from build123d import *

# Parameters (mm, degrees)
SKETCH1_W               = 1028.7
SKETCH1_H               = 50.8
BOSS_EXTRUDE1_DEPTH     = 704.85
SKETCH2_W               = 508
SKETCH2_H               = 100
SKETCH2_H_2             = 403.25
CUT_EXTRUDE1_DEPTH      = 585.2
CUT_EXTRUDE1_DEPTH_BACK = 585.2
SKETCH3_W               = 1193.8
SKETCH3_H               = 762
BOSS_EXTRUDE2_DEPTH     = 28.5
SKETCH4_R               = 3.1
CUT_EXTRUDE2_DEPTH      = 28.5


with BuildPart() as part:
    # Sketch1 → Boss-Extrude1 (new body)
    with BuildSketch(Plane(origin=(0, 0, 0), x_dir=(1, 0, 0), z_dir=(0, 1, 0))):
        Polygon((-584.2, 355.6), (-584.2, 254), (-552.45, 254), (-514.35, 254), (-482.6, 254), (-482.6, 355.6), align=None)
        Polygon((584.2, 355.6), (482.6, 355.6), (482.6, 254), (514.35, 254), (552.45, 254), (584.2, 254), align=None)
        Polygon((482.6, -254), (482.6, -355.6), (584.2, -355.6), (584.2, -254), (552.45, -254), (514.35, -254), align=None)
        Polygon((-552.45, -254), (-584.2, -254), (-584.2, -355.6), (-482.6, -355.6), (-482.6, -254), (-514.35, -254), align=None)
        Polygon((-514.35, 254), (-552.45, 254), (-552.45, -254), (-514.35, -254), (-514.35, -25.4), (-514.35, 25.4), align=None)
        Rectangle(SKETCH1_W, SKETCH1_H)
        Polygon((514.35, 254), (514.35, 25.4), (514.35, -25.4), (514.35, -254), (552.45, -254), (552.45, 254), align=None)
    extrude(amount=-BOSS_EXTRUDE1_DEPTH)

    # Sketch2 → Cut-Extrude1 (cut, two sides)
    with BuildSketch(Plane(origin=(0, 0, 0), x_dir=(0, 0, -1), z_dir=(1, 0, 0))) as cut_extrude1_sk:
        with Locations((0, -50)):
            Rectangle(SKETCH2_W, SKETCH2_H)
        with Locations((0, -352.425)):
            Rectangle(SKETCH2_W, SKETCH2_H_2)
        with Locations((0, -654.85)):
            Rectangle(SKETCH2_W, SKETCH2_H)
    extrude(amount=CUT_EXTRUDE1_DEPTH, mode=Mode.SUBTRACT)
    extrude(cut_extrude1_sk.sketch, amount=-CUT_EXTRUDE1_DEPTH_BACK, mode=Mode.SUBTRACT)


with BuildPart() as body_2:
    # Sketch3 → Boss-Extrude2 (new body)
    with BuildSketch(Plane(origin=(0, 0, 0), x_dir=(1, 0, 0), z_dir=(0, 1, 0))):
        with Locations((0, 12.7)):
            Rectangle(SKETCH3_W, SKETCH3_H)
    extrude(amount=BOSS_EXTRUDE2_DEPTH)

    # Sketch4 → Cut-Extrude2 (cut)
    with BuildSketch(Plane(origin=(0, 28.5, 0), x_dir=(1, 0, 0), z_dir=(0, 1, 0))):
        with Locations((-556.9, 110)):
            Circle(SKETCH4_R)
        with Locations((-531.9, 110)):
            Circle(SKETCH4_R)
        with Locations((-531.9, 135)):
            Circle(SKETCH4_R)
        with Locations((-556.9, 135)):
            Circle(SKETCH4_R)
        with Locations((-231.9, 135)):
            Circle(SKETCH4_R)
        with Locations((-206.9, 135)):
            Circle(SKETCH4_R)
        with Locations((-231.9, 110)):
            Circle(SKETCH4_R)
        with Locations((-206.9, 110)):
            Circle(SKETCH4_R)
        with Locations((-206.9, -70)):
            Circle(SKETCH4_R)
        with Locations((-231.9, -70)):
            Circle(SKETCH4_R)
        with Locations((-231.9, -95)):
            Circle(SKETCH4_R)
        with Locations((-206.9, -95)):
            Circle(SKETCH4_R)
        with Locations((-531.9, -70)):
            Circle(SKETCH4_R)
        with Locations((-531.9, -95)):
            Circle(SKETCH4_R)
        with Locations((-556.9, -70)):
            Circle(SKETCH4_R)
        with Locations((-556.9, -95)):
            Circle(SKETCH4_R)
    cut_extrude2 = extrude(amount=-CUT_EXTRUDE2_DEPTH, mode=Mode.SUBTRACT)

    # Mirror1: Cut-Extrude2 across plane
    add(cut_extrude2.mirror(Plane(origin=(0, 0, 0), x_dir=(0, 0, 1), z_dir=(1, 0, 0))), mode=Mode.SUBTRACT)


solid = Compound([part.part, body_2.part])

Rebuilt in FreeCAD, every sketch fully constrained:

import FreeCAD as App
import Part
import Sketcher
Q = App.Units.Quantity

doc = App.newDocument("Part")
params = doc.addObject("Spreadsheet::Sheet", "Params")
for row, (alias, value) in enumerate([
    ("sketch1_width", "4 in"),
    ("sketch1_height", "20 in"),
    ("sketch1_height2", "9 in"),
    ("sketch1_width2", "40.5 in"),
    ("pad1_length", "27.75 in"),
    ("sketch2_height", "20 in"),
    ("sketch3_width", "47 in"),
    ("sketch3_height", "30 in"),
    ("pad2_length", "28.5 mm"),
    ("pocket2_length", "28.5 mm"),
], start=1):
    params.set(f"A{row}", alias)
    params.set(f"B{row}", "=" + value)
    params.setAlias(f"B{row}", alias)

body = doc.addObject("PartDesign::Body", "Body")

# Sketch on XZ plane
sketch1 = doc.addObject("Sketcher::SketchObject", "Sketch")
body.addObject(sketch1)
sketch1.AttachmentSupport = (doc.XZ_Plane, [""])
sketch1.MapMode = "FlatFace"
sketch1.addGeometry([
    Part.LineSegment(App.Vector(-584.2, -355.6, 0), App.Vector(-584.2, -254, 0)),  # 0
    Part.LineSegment(App.Vector(-584.2, -254, 0), App.Vector(-552.45, -254, 0)),  # 1
    Part.LineSegment(App.Vector(-552.45, -254, 0), App.Vector(-552.45, 254, 0)),  # 2
    Part.LineSegment(App.Vector(-552.45, 254, 0), App.Vector(-584.2, 254, 0)),  # 3
    Part.LineSegment(App.Vector(-584.2, 254, 0), App.Vector(-584.2, 355.6, 0)),  # 4
    Part.LineSegment(App.Vector(-584.2, 355.6, 0), App.Vector(-482.6, 355.6, 0)),  # 5
    Part.LineSegment(App.Vector(-482.6, 355.6, 0), App.Vector(-482.6, 254, 0)),  # 6
    Part.LineSegment(App.Vector(-482.6, 254, 0), App.Vector(-514.35, 254, 0)),  # 7
    Part.LineSegment(App.Vector(-514.35, 254, 0), App.Vector(-514.35, 25.4, 0)),  # 8
    Part.LineSegment(App.Vector(-514.35, 25.4, 0), App.Vector(514.35, 25.4, 0)),  # 9
    Part.LineSegment(App.Vector(514.35, 25.4, 0), App.Vector(514.35, 254, 0)),  # 10
    Part.LineSegment(App.Vector(514.35, 254, 0), App.Vector(482.6, 254, 0)),  # 11
    Part.LineSegment(App.Vector(482.6, 254, 0), App.Vector(482.6, 355.6, 0)),  # 12
    Part.LineSegment(App.Vector(482.6, 355.6, 0), App.Vector(584.2, 355.6, 0)),  # 13
    Part.LineSegment(App.Vector(584.2, 355.6, 0), App.Vector(584.2, 254, 0)),  # 14
    Part.LineSegment(App.Vector(584.2, 254, 0), App.Vector(552.45, 254, 0)),  # 15
    Part.LineSegment(App.Vector(552.45, 254, 0), App.Vector(552.45, -254, 0)),  # 16
    Part.LineSegment(App.Vector(552.45, -254, 0), App.Vector(584.2, -254, 0)),  # 17
    Part.LineSegment(App.Vector(584.2, -254, 0), App.Vector(584.2, -355.6, 0)),  # 18
    Part.LineSegment(App.Vector(584.2, -355.6, 0), App.Vector(482.6, -355.6, 0)),  # 19
    Part.LineSegment(App.Vector(482.6, -355.6, 0), App.Vector(482.6, -254, 0)),  # 20
    Part.LineSegment(App.Vector(482.6, -254, 0), App.Vector(514.35, -254, 0)),  # 21
    Part.LineSegment(App.Vector(514.35, -254, 0), App.Vector(514.35, -25.4, 0)),  # 22
    Part.LineSegment(App.Vector(514.35, -25.4, 0), App.Vector(-514.35, -25.4, 0)),  # 23
    Part.LineSegment(App.Vector(-514.35, -25.4, 0), App.Vector(-514.35, -254, 0)),  # 24
    Part.LineSegment(App.Vector(-514.35, -254, 0), App.Vector(-482.6, -254, 0)),  # 25
    Part.LineSegment(App.Vector(-482.6, -254, 0), App.Vector(-482.6, -355.6, 0)),  # 26
    Part.LineSegment(App.Vector(-482.6, -355.6, 0), App.Vector(-584.2, -355.6, 0)),  # 27
], False)
sketch1.addConstraint([
    Sketcher.Constraint("Coincident", 0, 2, 1, 1),
    Sketcher.Constraint("Coincident", 1, 2, 2, 1),
    Sketcher.Constraint("Coincident", 2, 2, 3, 1),
    Sketcher.Constraint("Coincident", 3, 2, 4, 1),
    Sketcher.Constraint("Coincident", 4, 2, 5, 1),
    Sketcher.Constraint("Coincident", 5, 2, 6, 1),
    Sketcher.Constraint("Coincident", 6, 2, 7, 1),
    Sketcher.Constraint("Coincident", 7, 2, 8, 1),
    Sketcher.Constraint("Coincident", 8, 2, 9, 1),
    Sketcher.Constraint("Coincident", 9, 2, 10, 1),
    Sketcher.Constraint("Coincident", 10, 2, 11, 1),
    Sketcher.Constraint("Coincident", 11, 2, 12, 1),
    Sketcher.Constraint("Coincident", 12, 2, 13, 1),
    Sketcher.Constraint("Coincident", 13, 2, 14, 1),
    Sketcher.Constraint("Coincident", 14, 2, 15, 1),
    Sketcher.Constraint("Coincident", 15, 2, 16, 1),
    Sketcher.Constraint("Coincident", 16, 2, 17, 1),
    Sketcher.Constraint("Coincident", 17, 2, 18, 1),
    Sketcher.Constraint("Coincident", 18, 2, 19, 1),
    Sketcher.Constraint("Coincident", 19, 2, 20, 1),
    Sketcher.Constraint("Coincident", 20, 2, 21, 1),
    Sketcher.Constraint("Coincident", 21, 2, 22, 1),
    Sketcher.Constraint("Coincident", 22, 2, 23, 1),
    Sketcher.Constraint("Coincident", 23, 2, 24, 1),
    Sketcher.Constraint("Coincident", 24, 2, 25, 1),
    Sketcher.Constraint("Coincident", 25, 2, 26, 1),
    Sketcher.Constraint("Coincident", 26, 2, 27, 1),
    Sketcher.Constraint("Coincident", 27, 2, 0, 1),
    Sketcher.Constraint("Vertical", 0),
    Sketcher.Constraint("Horizontal", 1),
    Sketcher.Constraint("Vertical", 2),
    Sketcher.Constraint("Horizontal", 3),
    Sketcher.Constraint("Vertical", 4),
    Sketcher.Constraint("Horizontal", 5),
    Sketcher.Constraint("Vertical", 6),
    Sketcher.Constraint("Horizontal", 7),
    Sketcher.Constraint("Vertical", 8),
    Sketcher.Constraint("Horizontal", 9),
    Sketcher.Constraint("Vertical", 10),
    Sketcher.Constraint("Horizontal", 11),
    Sketcher.Constraint("Vertical", 12),
    Sketcher.Constraint("Horizontal", 13),
    Sketcher.Constraint("Vertical", 14),
    Sketcher.Constraint("Horizontal", 15),
    Sketcher.Constraint("Vertical", 16),
    Sketcher.Constraint("Horizontal", 17),
    Sketcher.Constraint("Vertical", 18),
    Sketcher.Constraint("Horizontal", 19),
    Sketcher.Constraint("Vertical", 20),
    Sketcher.Constraint("Horizontal", 21),
    Sketcher.Constraint("Vertical", 22),
    Sketcher.Constraint("Horizontal", 23),
    Sketcher.Constraint("Vertical", 24),
    Sketcher.Constraint("Horizontal", 25),
    Sketcher.Constraint("Vertical", 26),
    Sketcher.Constraint("Horizontal", 27),
    Sketcher.Constraint("Symmetric", 0, 2, 14, 2, -1, 1),
    Sketcher.Constraint("Symmetric", 2, 2, 16, 2, -1, 1),
    Sketcher.Constraint("Symmetric", 4, 2, 18, 2, -1, 1),
    Sketcher.Constraint("Symmetric", 6, 2, 20, 2, -1, 1),
    Sketcher.Constraint("Symmetric", 8, 2, 22, 2, -1, 1),
    Sketcher.Constraint("Symmetric", 10, 2, 24, 2, -1, 1),
    Sketcher.Constraint("Symmetric", 12, 2, 26, 2, -1, 1),
    Sketcher.Constraint("Symmetric", 7, 2, 10, 2, -2),
    Sketcher.Constraint("Symmetric", 5, 2, 12, 2, -2),
    Sketcher.Constraint("Symmetric", 3, 2, 14, 2, -2),
    Sketcher.Constraint("Horizontal", 3, 2, 6, 2),
    Sketcher.Constraint("Equal", 3, 7),
    Sketcher.Constraint("Equal", 27, 0),
    Sketcher.Constraint("DistanceX", 5, 1, 5, 2, Q("4 in")),
    Sketcher.Constraint("DistanceY", 2, 1, 2, 2, Q("20 in")),
    Sketcher.Constraint("DistanceY", 8, 2, 8, 1, Q("9 in")),
    Sketcher.Constraint("DistanceX", 9, 1, 9, 2, Q("40.5 in")),
    Sketcher.Constraint("DistanceX", 0, 2, -1, 1, Q("23 in")),
])
sketch1.setExpression("Constraints[69]", "Params.sketch1_width")
sketch1.setExpression("Constraints[70]", "Params.sketch1_height")
sketch1.setExpression("Constraints[71]", "Params.sketch1_height2")
sketch1.setExpression("Constraints[72]", "Params.sketch1_width2")
pad1 = doc.addObject("PartDesign::Pad", "Pad")
body.addObject(pad1)
pad1.Profile = sketch1
pad1.setExpression("Length", "Params.pad1_length")

# Sketch on YZ plane
sketch2 = doc.addObject("Sketcher::SketchObject", "Sketch001")
body.addObject(sketch2)
sketch2.AttachmentSupport = (doc.YZ_Plane, [""])
sketch2.MapMode = "FlatFace"
sketch2.addGeometry([
    Part.LineSegment(App.Vector(0, 254, 0), App.Vector(-100, 254, 0)),  # 0
    Part.LineSegment(App.Vector(-100, 254, 0), App.Vector(-100, -254, 0)),  # 1
    Part.LineSegment(App.Vector(-100, -254, 0), App.Vector(0, -254, 0)),  # 2
    Part.LineSegment(App.Vector(0, -254, 0), App.Vector(0, 254, 0)),  # 3
    Part.LineSegment(App.Vector(-150.8, 254, 0), App.Vector(-554.05, 254, 0)),  # 4
    Part.LineSegment(App.Vector(-554.05, 254, 0), App.Vector(-554.05, -254, 0)),  # 5
    Part.LineSegment(App.Vector(-554.05, -254, 0), App.Vector(-150.8, -254, 0)),  # 6
    Part.LineSegment(App.Vector(-150.8, -254, 0), App.Vector(-150.8, 254, 0)),  # 7
    Part.LineSegment(App.Vector(-604.85, 254, 0), App.Vector(-704.85, 254, 0)),  # 8
    Part.LineSegment(App.Vector(-704.85, 254, 0), App.Vector(-704.85, -254, 0)),  # 9
    Part.LineSegment(App.Vector(-704.85, -254, 0), App.Vector(-604.85, -254, 0)),  # 10
    Part.LineSegment(App.Vector(-604.85, -254, 0), App.Vector(-604.85, 254, 0)),  # 11
], False)
sketch2.addConstraint([
    Sketcher.Constraint("Coincident", 0, 2, 1, 1),
    Sketcher.Constraint("Coincident", 1, 2, 2, 1),
    Sketcher.Constraint("Coincident", 2, 2, 3, 1),
    Sketcher.Constraint("Coincident", 3, 2, 0, 1),
    Sketcher.Constraint("Coincident", 4, 2, 5, 1),
    Sketcher.Constraint("Coincident", 5, 2, 6, 1),
    Sketcher.Constraint("Coincident", 6, 2, 7, 1),
    Sketcher.Constraint("Coincident", 7, 2, 4, 1),
    Sketcher.Constraint("Coincident", 8, 2, 9, 1),
    Sketcher.Constraint("Coincident", 9, 2, 10, 1),
    Sketcher.Constraint("Coincident", 10, 2, 11, 1),
    Sketcher.Constraint("Coincident", 11, 2, 8, 1),
    Sketcher.Constraint("Horizontal", 0),
    Sketcher.Constraint("Vertical", 1),
    Sketcher.Constraint("Horizontal", 2),
    Sketcher.Constraint("Vertical", 3),
    Sketcher.Constraint("Horizontal", 4),
    Sketcher.Constraint("Vertical", 5),
    Sketcher.Constraint("Horizontal", 6),
    Sketcher.Constraint("Vertical", 7),
    Sketcher.Constraint("Horizontal", 8),
    Sketcher.Constraint("Vertical", 9),
    Sketcher.Constraint("Horizontal", 10),
    Sketcher.Constraint("Vertical", 11),
    Sketcher.Constraint("Symmetric", 2, 2, 3, 2, -1, 1),
    Sketcher.Constraint("Horizontal", 3, 2, 4, 2),
    Sketcher.Constraint("Horizontal", 2, 2, 5, 2),
    Sketcher.Constraint("Horizontal", 7, 2, 8, 2),
    Sketcher.Constraint("Horizontal", 6, 2, 9, 2),
    Sketcher.Constraint("Equal", 2, 8),
    Sketcher.Constraint("DistanceY", 1, 2, 1, 1, Q("20 in")),
    Sketcher.Constraint("DistanceX", 6, 2, 1, 2, Q("2 in")),
    Sketcher.Constraint("DistanceX", 10, 2, 5, 2, Q("2 in")),
    Sketcher.Constraint("DistanceX", 8, 2, -1, 1, Q("27.75 in")),
    Sketcher.Constraint("DistanceX", 0, 2, 0, 1, 100.0),
])
sketch2.setExpression("Constraints[30]", "Params.sketch2_height")
pocket1 = doc.addObject("PartDesign::Pocket", "Pocket")
body.addObject(pocket1)
pocket1.Profile = sketch2
pocket1.Type = "ThroughAll"
pocket1.Midplane = True
body2 = doc.addObject("PartDesign::Body", "Body001")

# Sketch on XZ plane
sketch3 = doc.addObject("Sketcher::SketchObject", "Sketch002")
body2.addObject(sketch3)
sketch3.AttachmentSupport = (doc.getObject("XZ_Plane001"), [""])
sketch3.MapMode = "FlatFace"
sketch3.addGeometry([
    Part.LineSegment(App.Vector(-596.9, -393.7, 0), App.Vector(-596.9, 368.3, 0)),
    Part.LineSegment(App.Vector(-596.9, 368.3, 0), App.Vector(596.9, 368.3, 0)),
    Part.LineSegment(App.Vector(596.9, 368.3, 0), App.Vector(596.9, -393.7, 0)),
    Part.LineSegment(App.Vector(596.9, -393.7, 0), App.Vector(-596.9, -393.7, 0)),
], False)
sketch3.addConstraint([
    Sketcher.Constraint("Coincident", 0, 2, 1, 1),
    Sketcher.Constraint("Coincident", 1, 2, 2, 1),
    Sketcher.Constraint("Coincident", 2, 2, 3, 1),
    Sketcher.Constraint("Coincident", 3, 2, 0, 1),
    Sketcher.Constraint("Vertical", 0),
    Sketcher.Constraint("Horizontal", 1),
    Sketcher.Constraint("Vertical", 2),
    Sketcher.Constraint("Horizontal", 3),
    Sketcher.Constraint("DistanceX", 1, 1, 1, 2, Q("47 in")),
    Sketcher.Constraint("DistanceY", 0, 1, 0, 2, Q("30 in")),
    Sketcher.Constraint("DistanceX", 0, 2, -1, 1, Q("23.5 in")),
    Sketcher.Constraint("DistanceY", -1, 1, 0, 2, Q("14.5 in")),
])
sketch3.setExpression("Constraints[8]", "Params.sketch3_width")
sketch3.setExpression("Constraints[9]", "Params.sketch3_height")
pad2 = doc.addObject("PartDesign::Pad", "Pad001")
body2.addObject(pad2)
pad2.Profile = sketch3
pad2.setExpression("Length", "Params.pad2_length")
pad2.Reversed = True

# Sketch on XZ plane
sketch4 = doc.addObject("Sketcher::SketchObject", "Sketch003")
body2.addObject(sketch4)
sketch4.AttachmentSupport = (doc.getObject("XZ_Plane001"), [""])
sketch4.MapMode = "FlatFace"
sketch4.AttachmentOffset = App.Placement(App.Vector(0, 0, -28.5), App.Rotation())
sketch4.addGeometry([
    Part.Circle(App.Vector(-556.9, -110, 0), App.Vector(0, 0, 1), 3.1),  # 0
    Part.Circle(App.Vector(-531.9, -110, 0), App.Vector(0, 0, 1), 3.1),  # 1
    Part.Circle(App.Vector(-531.9, -135, 0), App.Vector(0, 0, 1), 3.1),  # 2
    Part.Circle(App.Vector(-556.9, -135, 0), App.Vector(0, 0, 1), 3.1),  # 3
    Part.Circle(App.Vector(-231.9, -135, 0), App.Vector(0, 0, 1), 3.1),  # 4
    Part.Circle(App.Vector(-206.9, -135, 0), App.Vector(0, 0, 1), 3.1),  # 5
    Part.Circle(App.Vector(-231.9, -110, 0), App.Vector(0, 0, 1), 3.1),  # 6
    Part.Circle(App.Vector(-206.9, -110, 0), App.Vector(0, 0, 1), 3.1),  # 7
    Part.Circle(App.Vector(-206.9, 70, 0), App.Vector(0, 0, 1), 3.1),  # 8
    Part.Circle(App.Vector(-231.9, 70, 0), App.Vector(0, 0, 1), 3.1),  # 9
    Part.Circle(App.Vector(-231.9, 95, 0), App.Vector(0, 0, 1), 3.1),  # 10
    Part.Circle(App.Vector(-206.9, 95, 0), App.Vector(0, 0, 1), 3.1),  # 11
    Part.Circle(App.Vector(-531.9, 70, 0), App.Vector(0, 0, 1), 3.1),  # 12
    Part.Circle(App.Vector(-531.9, 95, 0), App.Vector(0, 0, 1), 3.1),  # 13
    Part.Circle(App.Vector(-556.9, 70, 0), App.Vector(0, 0, 1), 3.1),  # 14
    Part.Circle(App.Vector(-556.9, 95, 0), App.Vector(0, 0, 1), 3.1),  # 15
], False)
sketch4.addConstraint([
    Sketcher.Constraint("Equal", 0, 1),
    Sketcher.Constraint("Equal", 1, 2),
    Sketcher.Constraint("Equal", 2, 3),
    Sketcher.Constraint("Equal", 3, 4),
    Sketcher.Constraint("Equal", 4, 5),
    Sketcher.Constraint("Equal", 5, 6),
    Sketcher.Constraint("Equal", 6, 7),
    Sketcher.Constraint("Equal", 7, 8),
    Sketcher.Constraint("Equal", 8, 9),
    Sketcher.Constraint("Equal", 9, 10),
    Sketcher.Constraint("Equal", 10, 11),
    Sketcher.Constraint("Equal", 11, 12),
    Sketcher.Constraint("Equal", 12, 13),
    Sketcher.Constraint("Equal", 13, 14),
    Sketcher.Constraint("Equal", 14, 15),
    Sketcher.Constraint("Horizontal", 0, 3, 1, 3),
    Sketcher.Constraint("Horizontal", 2, 3, 3, 3),
    Sketcher.Constraint("Horizontal", 3, 3, 4, 3),
    Sketcher.Constraint("Horizontal", 4, 3, 5, 3),
    Sketcher.Constraint("Horizontal", 1, 3, 6, 3),
    Sketcher.Constraint("Horizontal", 6, 3, 7, 3),
    Sketcher.Constraint("Horizontal", 8, 3, 9, 3),
    Sketcher.Constraint("Horizontal", 10, 3, 11, 3),
    Sketcher.Constraint("Horizontal", 9, 3, 12, 3),
    Sketcher.Constraint("Horizontal", 11, 3, 13, 3),
    Sketcher.Constraint("Horizontal", 12, 3, 14, 3),
    Sketcher.Constraint("Horizontal", 13, 3, 15, 3),
    Sketcher.Constraint("Vertical", 1, 3, 2, 3),
    Sketcher.Constraint("Vertical", 0, 3, 3, 3),
    Sketcher.Constraint("Vertical", 4, 3, 6, 3),
    Sketcher.Constraint("Vertical", 5, 3, 7, 3),
    Sketcher.Constraint("Vertical", 7, 3, 8, 3),
    Sketcher.Constraint("Vertical", 6, 3, 9, 3),
    Sketcher.Constraint("Vertical", 9, 3, 10, 3),
    Sketcher.Constraint("Vertical", 8, 3, 11, 3),
    Sketcher.Constraint("Vertical", 2, 3, 12, 3),
    Sketcher.Constraint("Vertical", 12, 3, 13, 3),
    Sketcher.Constraint("Vertical", 3, 3, 14, 3),
    Sketcher.Constraint("Vertical", 14, 3, 15, 3),
    Sketcher.Constraint("Diameter", 0, 6.2),
    Sketcher.Constraint("DistanceX", 0, 3, -1, 1, 556.9),
    Sketcher.Constraint("DistanceY", 0, 3, -1, 1, 110.0),
    Sketcher.Constraint("DistanceX", 1, 3, -1, 1, 531.9),
    Sketcher.Constraint("DistanceY", 2, 3, -1, 1, 135.0),
    Sketcher.Constraint("DistanceX", 4, 3, -1, 1, 231.9),
    Sketcher.Constraint("DistanceX", 5, 3, -1, 1, 206.9),
    Sketcher.Constraint("DistanceY", -1, 1, 8, 3, 70.0),
    Sketcher.Constraint("DistanceY", -1, 1, 10, 3, 95.0),
])
pocket2 = doc.addObject("PartDesign::Pocket", "Pocket001")
body2.addObject(pocket2)
pocket2.Profile = sketch4
pocket2.setExpression("Length", "Params.pocket2_length")
pocket2.Reversed = True
doc.recompute()

mirrored = doc.addObject("PartDesign::Mirrored", "Mirrored")
body2.addObject(mirrored)
mirrored.Originals = [pocket2]
mirrored.MirrorPlane = (doc.getObject("YZ_Plane001"), [""])
body2.Tip = mirrored

doc.recompute()
